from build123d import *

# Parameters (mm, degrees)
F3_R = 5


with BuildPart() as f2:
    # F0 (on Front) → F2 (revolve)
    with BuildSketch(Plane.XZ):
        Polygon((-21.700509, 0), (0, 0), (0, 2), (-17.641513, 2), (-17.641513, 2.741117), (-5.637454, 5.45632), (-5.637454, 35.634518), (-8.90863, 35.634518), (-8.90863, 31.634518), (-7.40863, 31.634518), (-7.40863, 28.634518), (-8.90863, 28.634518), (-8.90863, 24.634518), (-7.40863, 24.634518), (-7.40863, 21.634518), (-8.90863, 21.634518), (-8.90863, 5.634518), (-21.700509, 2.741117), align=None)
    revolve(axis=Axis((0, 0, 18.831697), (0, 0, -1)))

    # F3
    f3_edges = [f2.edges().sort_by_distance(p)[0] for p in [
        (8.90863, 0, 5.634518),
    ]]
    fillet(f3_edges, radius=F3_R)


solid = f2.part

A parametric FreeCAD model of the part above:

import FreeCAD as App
import Part
import Sketcher
from FreeCAD import Vector


def edges_at(feature, points):
    """Names of the edges that pass closest to the given points."""
    edges = feature.Shape.Edges
    near = lambda p: min(range(len(edges)), key=lambda i: edges[i].distToShape(Part.Vertex(*p))[0])
    return sorted({f"Edge{near(p) + 1}" for p in points})

doc = App.newDocument("Part")
body = doc.addObject("PartDesign::Body", "Body")

# Sketch on XZ plane
sketch1 = doc.addObject("Sketcher::SketchObject", "Sketch")
body.addObject(sketch1)
sketch1.AttachmentSupport = (doc.XZ_Plane, [""])
sketch1.MapMode = "FlatFace"
sketch1.addGeometry([
    Part.LineSegment(Vector(-21.700509, 0, 0), Vector(0, 0, 0)),  # 0
    Part.LineSegment(Vector(0, 0, 0), Vector(0, 2, 0)),  # 1
    Part.LineSegment(Vector(0, 2, 0), Vector(-17.641513, 2, 0)),  # 2
    Part.LineSegment(Vector(-17.641513, 2, 0), Vector(-17.641513, 2.741117, 0)),  # 3
    Part.LineSegment(Vector(-17.641513, 2.741117, 0), Vector(-5.637454, 5.45632, 0)),  # 4
    Part.LineSegment(Vector(-5.637454, 5.45632, 0), Vector(-5.637454, 35.634518, 0)),  # 5
    Part.LineSegment(Vector(-5.637454, 35.634518, 0), Vector(-8.90863, 35.634518, 0)),  # 6
    Part.LineSegment(Vector(-8.90863, 35.634518, 0), Vector(-8.90863, 31.634518, 0)),  # 7
    Part.LineSegment(Vector(-8.90863, 31.634518, 0), Vector(-7.40863, 31.634518, 0)),  # 8
    Part.LineSegment(Vector(-7.40863, 31.634518, 0), Vector(-7.40863, 28.634518, 0)),  # 9
    Part.LineSegment(Vector(-7.40863, 28.634518, 0), Vector(-8.90863, 28.634518, 0)),  # 10
    Part.LineSegment(Vector(-8.90863, 28.634518, 0), Vector(-8.90863, 24.634518, 0)),  # 11
    Part.LineSegment(Vector(-8.90863, 24.634518, 0), Vector(-7.40863, 24.634518, 0)),  # 12
    Part.LineSegment(Vector(-7.40863, 24.634518, 0), Vector(-7.40863, 21.634518, 0)),  # 13
    Part.LineSegment(Vector(-7.40863, 21.634518, 0), Vector(-8.90863, 21.634518, 0)),  # 14
    Part.LineSegment(Vector(-8.90863, 21.634518, 0), Vector(-8.90863, 5.634518, 0)),  # 15
    Part.LineSegment(Vector(-8.90863, 5.634518, 0), Vector(-21.700509, 2.741117, 0)),  # 16
    Part.LineSegment(Vector(-21.700509, 2.741117, 0), Vector(-21.700509, 0, 0)),  # 17
], False)
sketch1.addConstraint([
    Sketcher.Constraint("Coincident", 0, 2, 1, 1),
    Sketcher.Constraint("Coincident", 1, 2, 2, 1),
    Sketcher.Constraint("Coincident", 2, 2, 3, 1),
    Sketcher.Constraint("Coincident", 3, 2, 4, 1),
    Sketcher.Constraint("Coincident", 4, 2, 5, 1),
    Sketcher.Constraint("Coincident", 5, 2, 6, 1),
    Sketcher.Constraint("Coincident", 6, 2, 7, 1),
    Sketcher.Constraint("Coincident", 7, 2, 8, 1),
    Sketcher.Constraint("Coincident", 8, 2, 9, 1),
    Sketcher.Constraint("Coincident", 9, 2, 10, 1),
    Sketcher.Constraint("Coincident", 10, 2, 11, 1),
    Sketcher.Constraint("Coincident", 11, 2, 12, 1),
    Sketcher.Constraint("Coincident", 12, 2, 13, 1),
    Sketcher.Constraint("Coincident", 13, 2, 14, 1),
    Sketcher.Constraint("Coincident", 14, 2, 15, 1),
    Sketcher.Constraint("Coincident", 15, 2, 16, 1),
    Sketcher.Constraint("Coincident", 16, 2, 17, 1),
    Sketcher.Constraint("Coincident", 17, 2, 0, 1),
    Sketcher.Constraint("Horizontal", 0),
    Sketcher.Constraint("Vertical", 1),
    Sketcher.Constraint("Horizontal", 2),
    Sketcher.Constraint("Vertical", 3),
    Sketcher.Constraint("Vertical", 5),
    Sketcher.Constraint("Horizontal", 6),
    Sketcher.Constraint("Vertical", 7),
    Sketcher.Constraint("Horizontal", 8),
    Sketcher.Constraint("Vertical", 9),
    Sketcher.Constraint("Horizontal", 10),
    Sketcher.Constraint("Vertical", 11),
    Sketcher.Constraint("Horizontal", 12),
    Sketcher.Constraint("Vertical", 13),
    Sketcher.Constraint("Horizontal", 14),
    Sketcher.Constraint("Vertical", 15),
    Sketcher.Constraint("Vertical", 17),
    Sketcher.Constraint("Coincident", 0, 2, -1, 1),
    Sketcher.Constraint("DistanceY", 1, 1, 1, 2, 2.0),
    Sketcher.Constraint("DistanceY", 7, 2, 7, 1, 4.0),
    Sketcher.Constraint("DistanceY", 9, 2, 9, 1, 3.0),
    Sketcher.Constraint("DistanceY", 11, 2, 11, 1, 4.0),
    Sketcher.Constraint("DistanceY", 13, 2, 13, 1, 3.0),
    Sketcher.Constraint("DistanceY", 15, 2, 15, 1, 16.0),
    Sketcher.Constraint("DistanceX", 8, 1, 8, 2, 1.5),
    Sketcher.Constraint("DistanceX", 10, 2, 10, 1, 1.5),
    Sketcher.Constraint("DistanceX", 12, 1, 12, 2, 1.5),
    Sketcher.Constraint("DistanceX", 14, 2, 14, 1, 1.5),
    Sketcher.Constraint("DistanceY", 5, 1, 5, 2, 30.178198),
    Sketcher.Constraint("DistanceX", 0, 1, 0, 2, 21.700509),
    Sketcher.Constraint("DistanceY", 3, 2, 5, 2, 32.893401),
    Sketcher.Constraint("DistanceY", 16, 2, 15, 2, 2.893401),
    Sketcher.Constraint("DistanceX", 2, 2, 2, 1, 17.641513),
    Sketcher.Constraint("DistanceX", 6, 2, 6, 1, 3.271176),
    Sketcher.Constraint("DistanceY", 3, 1, 3, 2, 0.741117),
    Sketcher.Constraint("DistanceX", 6, 2, -1, 1, 8.90863),
])
revolution = doc.addObject("PartDesign::Revolution", "Revolution")
body.addObject(revolution)
revolution.Profile = sketch1
revolution.ReferenceAxis = (sketch1, ["V_Axis"])
revolution.Angle = 360
doc.recompute()

fillet = doc.addObject("PartDesign::Fillet", "Fillet")
body.addObject(fillet)
fillet.Base = (revolution, edges_at(revolution, [(8.909, 0, 5.635)]))
fillet.Radius = 5

doc.recompute()
